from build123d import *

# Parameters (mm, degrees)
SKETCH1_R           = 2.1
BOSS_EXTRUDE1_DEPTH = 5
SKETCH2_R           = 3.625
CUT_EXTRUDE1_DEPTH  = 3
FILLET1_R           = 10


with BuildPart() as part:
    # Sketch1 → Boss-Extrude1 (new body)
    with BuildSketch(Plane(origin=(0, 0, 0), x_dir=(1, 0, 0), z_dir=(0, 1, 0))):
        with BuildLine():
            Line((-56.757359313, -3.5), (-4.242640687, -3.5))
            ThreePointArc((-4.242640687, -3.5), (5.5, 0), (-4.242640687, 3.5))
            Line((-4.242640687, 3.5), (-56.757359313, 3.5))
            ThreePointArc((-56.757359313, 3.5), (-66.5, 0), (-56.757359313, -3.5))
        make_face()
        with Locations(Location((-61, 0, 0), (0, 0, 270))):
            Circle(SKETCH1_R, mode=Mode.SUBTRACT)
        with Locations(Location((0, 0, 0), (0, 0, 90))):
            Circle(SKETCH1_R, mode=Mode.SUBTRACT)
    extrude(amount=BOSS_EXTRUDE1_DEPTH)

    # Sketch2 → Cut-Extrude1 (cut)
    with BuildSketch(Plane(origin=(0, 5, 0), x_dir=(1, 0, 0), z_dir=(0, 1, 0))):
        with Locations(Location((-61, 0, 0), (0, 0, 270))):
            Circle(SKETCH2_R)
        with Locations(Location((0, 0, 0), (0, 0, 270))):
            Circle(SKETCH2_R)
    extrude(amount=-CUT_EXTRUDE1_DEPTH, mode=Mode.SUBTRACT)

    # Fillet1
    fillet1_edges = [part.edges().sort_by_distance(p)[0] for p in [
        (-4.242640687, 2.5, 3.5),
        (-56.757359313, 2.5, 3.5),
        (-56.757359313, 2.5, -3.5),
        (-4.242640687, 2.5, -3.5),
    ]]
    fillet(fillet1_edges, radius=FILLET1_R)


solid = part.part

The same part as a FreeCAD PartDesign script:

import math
import FreeCAD as App
import Part
import Sketcher

V = App.Vector
Q = App.Units.Quantity


def edges_at(feature, points):
    """Names of the edges that pass closest to the given points."""
    edges = feature.Shape.Edges
    near = lambda p: min(range(len(edges)), key=lambda i: edges[i].distToShape(Part.Vertex(*p))[0])
    return sorted({f"Edge{near(p) + 1}" for p in points})

doc = App.newDocument("Part")
body = doc.addObject("PartDesign::Body", "Body")

sketch1 = body.newObject("Sketcher::SketchObject", "Sketch")
sketch1.AttachmentSupport = (doc.getObject("XZ_Plane"), [""])
sketch1.MapMode = "FlatFace"
sketch1.addGeometry(Part.LineSegment(V(-56.8, 3.5, 0), V(-4.2, 3.5, 0)), False)
sketch1.addGeometry(Part.ArcOfCircle(Part.Circle(V(0, 0, 0), V(0, 0, 1), 5.5), math.radians(-140), math.radians(140)), False)
sketch1.addGeometry(Part.LineSegment(V(-4.2, -3.5, 0), V(-56.8, -3.5, 0)), False)
sketch1.addGeometry(Part.ArcOfCircle(Part.Circle(V(-61, 0, 0), V(0, 0, 1), 5.5), math.radians(40), math.radians(320)), False)
sketch1.addGeometry(Part.Circle(V(-61, 0, 0), V(0, 0, 1), 2.1), False)
sketch1.addGeometry(Part.Circle(V(0, 0, 0), V(0, 0, 1), 2.1), False)
sketch1.addConstraint(Sketcher.Constraint("Coincident", 0, 2, 1, 2))
sketch1.addConstraint(Sketcher.Constraint("Coincident", 1, 1, 2, 1))
sketch1.addConstraint(Sketcher.Constraint("Coincident", 2, 2, 3, 2))
sketch1.addConstraint(Sketcher.Constraint("Coincident", 3, 1, 0, 1))
sketch1.addConstraint(Sketcher.Constraint("Horizontal", 0))
sketch1.addConstraint(Sketcher.Constraint("Horizontal", 2))
sketch1.addConstraint(Sketcher.Constraint("Coincident", 1, 3, -1, 1))
sketch1.addConstraint(Sketcher.Constraint("Coincident", 5, 3, -1, 1))
sketch1.addConstraint(Sketcher.Constraint("Coincident", 4, 3, 3, 3))
sketch1.addConstraint(Sketcher.Constraint("Equal", 1, 3))
sketch1.addConstraint(Sketcher.Constraint("Equal", 4, 5))
sketch1.addConstraint(Sketcher.Constraint("Symmetric", 2, 2, 3, 1, -1))
sketch1.addConstraint(Sketcher.Constraint("Diameter", 4, Q("4.2 mm")))
sketch1.addConstraint(Sketcher.Constraint("Radius", 1, Q("5.5 mm")))
sketch1.addConstraint(Sketcher.Constraint("DistanceX", 3, 3, -1, 1, Q("61 mm")))
sketch1.addConstraint(Sketcher.Constraint("DistanceY", 1, 1, 0, 2, Q("7 mm")))
pad1 = body.newObject("PartDesign::Pad", "Pad")
pad1.Profile = sketch1
pad1.Length = 5
pad1.Reversed = True

sketch2 = body.newObject("Sketcher::SketchObject", "Sketch001")
sketch2.AttachmentSupport = (doc.getObject("XZ_Plane"), [""])
sketch2.MapMode = "FlatFace"
sketch2.AttachmentOffset = App.Placement(V(0, 0, -5), App.Rotation())
sketch2.addGeometry(Part.Circle(V(-61, 0, 0), V(0, 0, 1), 3.6), False)
sketch2.addGeometry(Part.Circle(V(0, 0, 0), V(0, 0, 1), 3.6), False)
sketch2.addConstraint(Sketcher.Constraint("Coincident", 1, 3, -1, 1))
sketch2.addConstraint(Sketcher.Constraint("Equal", 0, 1))
sketch2.addConstraint(Sketcher.Constraint("PointOnObject", 0, 3, -1))
sketch2.addConstraint(Sketcher.Constraint("Diameter", 0, Q("7.25 mm")))
sketch2.addConstraint(Sketcher.Constraint("DistanceX", 0, 3, -1, 1, Q("61 mm")))
pocket1 = body.newObject("PartDesign::Pocket", "Pocket")
pocket1.Profile = sketch2
pocket1.Length = 3
pocket1.Reversed = True
doc.recompute()

fillet = body.newObject("PartDesign::Fillet", "Fillet")
fillet.Base = (pocket1, edges_at(pocket1, [
    (-4.243, 2.5, 3.5),
    (-56.757, 2.5, 3.5),
    (-56.757, 2.5, -3.5),
    (-4.243, 2.5, -3.5),
]))
fillet.Radius = 10

doc.recompute()
